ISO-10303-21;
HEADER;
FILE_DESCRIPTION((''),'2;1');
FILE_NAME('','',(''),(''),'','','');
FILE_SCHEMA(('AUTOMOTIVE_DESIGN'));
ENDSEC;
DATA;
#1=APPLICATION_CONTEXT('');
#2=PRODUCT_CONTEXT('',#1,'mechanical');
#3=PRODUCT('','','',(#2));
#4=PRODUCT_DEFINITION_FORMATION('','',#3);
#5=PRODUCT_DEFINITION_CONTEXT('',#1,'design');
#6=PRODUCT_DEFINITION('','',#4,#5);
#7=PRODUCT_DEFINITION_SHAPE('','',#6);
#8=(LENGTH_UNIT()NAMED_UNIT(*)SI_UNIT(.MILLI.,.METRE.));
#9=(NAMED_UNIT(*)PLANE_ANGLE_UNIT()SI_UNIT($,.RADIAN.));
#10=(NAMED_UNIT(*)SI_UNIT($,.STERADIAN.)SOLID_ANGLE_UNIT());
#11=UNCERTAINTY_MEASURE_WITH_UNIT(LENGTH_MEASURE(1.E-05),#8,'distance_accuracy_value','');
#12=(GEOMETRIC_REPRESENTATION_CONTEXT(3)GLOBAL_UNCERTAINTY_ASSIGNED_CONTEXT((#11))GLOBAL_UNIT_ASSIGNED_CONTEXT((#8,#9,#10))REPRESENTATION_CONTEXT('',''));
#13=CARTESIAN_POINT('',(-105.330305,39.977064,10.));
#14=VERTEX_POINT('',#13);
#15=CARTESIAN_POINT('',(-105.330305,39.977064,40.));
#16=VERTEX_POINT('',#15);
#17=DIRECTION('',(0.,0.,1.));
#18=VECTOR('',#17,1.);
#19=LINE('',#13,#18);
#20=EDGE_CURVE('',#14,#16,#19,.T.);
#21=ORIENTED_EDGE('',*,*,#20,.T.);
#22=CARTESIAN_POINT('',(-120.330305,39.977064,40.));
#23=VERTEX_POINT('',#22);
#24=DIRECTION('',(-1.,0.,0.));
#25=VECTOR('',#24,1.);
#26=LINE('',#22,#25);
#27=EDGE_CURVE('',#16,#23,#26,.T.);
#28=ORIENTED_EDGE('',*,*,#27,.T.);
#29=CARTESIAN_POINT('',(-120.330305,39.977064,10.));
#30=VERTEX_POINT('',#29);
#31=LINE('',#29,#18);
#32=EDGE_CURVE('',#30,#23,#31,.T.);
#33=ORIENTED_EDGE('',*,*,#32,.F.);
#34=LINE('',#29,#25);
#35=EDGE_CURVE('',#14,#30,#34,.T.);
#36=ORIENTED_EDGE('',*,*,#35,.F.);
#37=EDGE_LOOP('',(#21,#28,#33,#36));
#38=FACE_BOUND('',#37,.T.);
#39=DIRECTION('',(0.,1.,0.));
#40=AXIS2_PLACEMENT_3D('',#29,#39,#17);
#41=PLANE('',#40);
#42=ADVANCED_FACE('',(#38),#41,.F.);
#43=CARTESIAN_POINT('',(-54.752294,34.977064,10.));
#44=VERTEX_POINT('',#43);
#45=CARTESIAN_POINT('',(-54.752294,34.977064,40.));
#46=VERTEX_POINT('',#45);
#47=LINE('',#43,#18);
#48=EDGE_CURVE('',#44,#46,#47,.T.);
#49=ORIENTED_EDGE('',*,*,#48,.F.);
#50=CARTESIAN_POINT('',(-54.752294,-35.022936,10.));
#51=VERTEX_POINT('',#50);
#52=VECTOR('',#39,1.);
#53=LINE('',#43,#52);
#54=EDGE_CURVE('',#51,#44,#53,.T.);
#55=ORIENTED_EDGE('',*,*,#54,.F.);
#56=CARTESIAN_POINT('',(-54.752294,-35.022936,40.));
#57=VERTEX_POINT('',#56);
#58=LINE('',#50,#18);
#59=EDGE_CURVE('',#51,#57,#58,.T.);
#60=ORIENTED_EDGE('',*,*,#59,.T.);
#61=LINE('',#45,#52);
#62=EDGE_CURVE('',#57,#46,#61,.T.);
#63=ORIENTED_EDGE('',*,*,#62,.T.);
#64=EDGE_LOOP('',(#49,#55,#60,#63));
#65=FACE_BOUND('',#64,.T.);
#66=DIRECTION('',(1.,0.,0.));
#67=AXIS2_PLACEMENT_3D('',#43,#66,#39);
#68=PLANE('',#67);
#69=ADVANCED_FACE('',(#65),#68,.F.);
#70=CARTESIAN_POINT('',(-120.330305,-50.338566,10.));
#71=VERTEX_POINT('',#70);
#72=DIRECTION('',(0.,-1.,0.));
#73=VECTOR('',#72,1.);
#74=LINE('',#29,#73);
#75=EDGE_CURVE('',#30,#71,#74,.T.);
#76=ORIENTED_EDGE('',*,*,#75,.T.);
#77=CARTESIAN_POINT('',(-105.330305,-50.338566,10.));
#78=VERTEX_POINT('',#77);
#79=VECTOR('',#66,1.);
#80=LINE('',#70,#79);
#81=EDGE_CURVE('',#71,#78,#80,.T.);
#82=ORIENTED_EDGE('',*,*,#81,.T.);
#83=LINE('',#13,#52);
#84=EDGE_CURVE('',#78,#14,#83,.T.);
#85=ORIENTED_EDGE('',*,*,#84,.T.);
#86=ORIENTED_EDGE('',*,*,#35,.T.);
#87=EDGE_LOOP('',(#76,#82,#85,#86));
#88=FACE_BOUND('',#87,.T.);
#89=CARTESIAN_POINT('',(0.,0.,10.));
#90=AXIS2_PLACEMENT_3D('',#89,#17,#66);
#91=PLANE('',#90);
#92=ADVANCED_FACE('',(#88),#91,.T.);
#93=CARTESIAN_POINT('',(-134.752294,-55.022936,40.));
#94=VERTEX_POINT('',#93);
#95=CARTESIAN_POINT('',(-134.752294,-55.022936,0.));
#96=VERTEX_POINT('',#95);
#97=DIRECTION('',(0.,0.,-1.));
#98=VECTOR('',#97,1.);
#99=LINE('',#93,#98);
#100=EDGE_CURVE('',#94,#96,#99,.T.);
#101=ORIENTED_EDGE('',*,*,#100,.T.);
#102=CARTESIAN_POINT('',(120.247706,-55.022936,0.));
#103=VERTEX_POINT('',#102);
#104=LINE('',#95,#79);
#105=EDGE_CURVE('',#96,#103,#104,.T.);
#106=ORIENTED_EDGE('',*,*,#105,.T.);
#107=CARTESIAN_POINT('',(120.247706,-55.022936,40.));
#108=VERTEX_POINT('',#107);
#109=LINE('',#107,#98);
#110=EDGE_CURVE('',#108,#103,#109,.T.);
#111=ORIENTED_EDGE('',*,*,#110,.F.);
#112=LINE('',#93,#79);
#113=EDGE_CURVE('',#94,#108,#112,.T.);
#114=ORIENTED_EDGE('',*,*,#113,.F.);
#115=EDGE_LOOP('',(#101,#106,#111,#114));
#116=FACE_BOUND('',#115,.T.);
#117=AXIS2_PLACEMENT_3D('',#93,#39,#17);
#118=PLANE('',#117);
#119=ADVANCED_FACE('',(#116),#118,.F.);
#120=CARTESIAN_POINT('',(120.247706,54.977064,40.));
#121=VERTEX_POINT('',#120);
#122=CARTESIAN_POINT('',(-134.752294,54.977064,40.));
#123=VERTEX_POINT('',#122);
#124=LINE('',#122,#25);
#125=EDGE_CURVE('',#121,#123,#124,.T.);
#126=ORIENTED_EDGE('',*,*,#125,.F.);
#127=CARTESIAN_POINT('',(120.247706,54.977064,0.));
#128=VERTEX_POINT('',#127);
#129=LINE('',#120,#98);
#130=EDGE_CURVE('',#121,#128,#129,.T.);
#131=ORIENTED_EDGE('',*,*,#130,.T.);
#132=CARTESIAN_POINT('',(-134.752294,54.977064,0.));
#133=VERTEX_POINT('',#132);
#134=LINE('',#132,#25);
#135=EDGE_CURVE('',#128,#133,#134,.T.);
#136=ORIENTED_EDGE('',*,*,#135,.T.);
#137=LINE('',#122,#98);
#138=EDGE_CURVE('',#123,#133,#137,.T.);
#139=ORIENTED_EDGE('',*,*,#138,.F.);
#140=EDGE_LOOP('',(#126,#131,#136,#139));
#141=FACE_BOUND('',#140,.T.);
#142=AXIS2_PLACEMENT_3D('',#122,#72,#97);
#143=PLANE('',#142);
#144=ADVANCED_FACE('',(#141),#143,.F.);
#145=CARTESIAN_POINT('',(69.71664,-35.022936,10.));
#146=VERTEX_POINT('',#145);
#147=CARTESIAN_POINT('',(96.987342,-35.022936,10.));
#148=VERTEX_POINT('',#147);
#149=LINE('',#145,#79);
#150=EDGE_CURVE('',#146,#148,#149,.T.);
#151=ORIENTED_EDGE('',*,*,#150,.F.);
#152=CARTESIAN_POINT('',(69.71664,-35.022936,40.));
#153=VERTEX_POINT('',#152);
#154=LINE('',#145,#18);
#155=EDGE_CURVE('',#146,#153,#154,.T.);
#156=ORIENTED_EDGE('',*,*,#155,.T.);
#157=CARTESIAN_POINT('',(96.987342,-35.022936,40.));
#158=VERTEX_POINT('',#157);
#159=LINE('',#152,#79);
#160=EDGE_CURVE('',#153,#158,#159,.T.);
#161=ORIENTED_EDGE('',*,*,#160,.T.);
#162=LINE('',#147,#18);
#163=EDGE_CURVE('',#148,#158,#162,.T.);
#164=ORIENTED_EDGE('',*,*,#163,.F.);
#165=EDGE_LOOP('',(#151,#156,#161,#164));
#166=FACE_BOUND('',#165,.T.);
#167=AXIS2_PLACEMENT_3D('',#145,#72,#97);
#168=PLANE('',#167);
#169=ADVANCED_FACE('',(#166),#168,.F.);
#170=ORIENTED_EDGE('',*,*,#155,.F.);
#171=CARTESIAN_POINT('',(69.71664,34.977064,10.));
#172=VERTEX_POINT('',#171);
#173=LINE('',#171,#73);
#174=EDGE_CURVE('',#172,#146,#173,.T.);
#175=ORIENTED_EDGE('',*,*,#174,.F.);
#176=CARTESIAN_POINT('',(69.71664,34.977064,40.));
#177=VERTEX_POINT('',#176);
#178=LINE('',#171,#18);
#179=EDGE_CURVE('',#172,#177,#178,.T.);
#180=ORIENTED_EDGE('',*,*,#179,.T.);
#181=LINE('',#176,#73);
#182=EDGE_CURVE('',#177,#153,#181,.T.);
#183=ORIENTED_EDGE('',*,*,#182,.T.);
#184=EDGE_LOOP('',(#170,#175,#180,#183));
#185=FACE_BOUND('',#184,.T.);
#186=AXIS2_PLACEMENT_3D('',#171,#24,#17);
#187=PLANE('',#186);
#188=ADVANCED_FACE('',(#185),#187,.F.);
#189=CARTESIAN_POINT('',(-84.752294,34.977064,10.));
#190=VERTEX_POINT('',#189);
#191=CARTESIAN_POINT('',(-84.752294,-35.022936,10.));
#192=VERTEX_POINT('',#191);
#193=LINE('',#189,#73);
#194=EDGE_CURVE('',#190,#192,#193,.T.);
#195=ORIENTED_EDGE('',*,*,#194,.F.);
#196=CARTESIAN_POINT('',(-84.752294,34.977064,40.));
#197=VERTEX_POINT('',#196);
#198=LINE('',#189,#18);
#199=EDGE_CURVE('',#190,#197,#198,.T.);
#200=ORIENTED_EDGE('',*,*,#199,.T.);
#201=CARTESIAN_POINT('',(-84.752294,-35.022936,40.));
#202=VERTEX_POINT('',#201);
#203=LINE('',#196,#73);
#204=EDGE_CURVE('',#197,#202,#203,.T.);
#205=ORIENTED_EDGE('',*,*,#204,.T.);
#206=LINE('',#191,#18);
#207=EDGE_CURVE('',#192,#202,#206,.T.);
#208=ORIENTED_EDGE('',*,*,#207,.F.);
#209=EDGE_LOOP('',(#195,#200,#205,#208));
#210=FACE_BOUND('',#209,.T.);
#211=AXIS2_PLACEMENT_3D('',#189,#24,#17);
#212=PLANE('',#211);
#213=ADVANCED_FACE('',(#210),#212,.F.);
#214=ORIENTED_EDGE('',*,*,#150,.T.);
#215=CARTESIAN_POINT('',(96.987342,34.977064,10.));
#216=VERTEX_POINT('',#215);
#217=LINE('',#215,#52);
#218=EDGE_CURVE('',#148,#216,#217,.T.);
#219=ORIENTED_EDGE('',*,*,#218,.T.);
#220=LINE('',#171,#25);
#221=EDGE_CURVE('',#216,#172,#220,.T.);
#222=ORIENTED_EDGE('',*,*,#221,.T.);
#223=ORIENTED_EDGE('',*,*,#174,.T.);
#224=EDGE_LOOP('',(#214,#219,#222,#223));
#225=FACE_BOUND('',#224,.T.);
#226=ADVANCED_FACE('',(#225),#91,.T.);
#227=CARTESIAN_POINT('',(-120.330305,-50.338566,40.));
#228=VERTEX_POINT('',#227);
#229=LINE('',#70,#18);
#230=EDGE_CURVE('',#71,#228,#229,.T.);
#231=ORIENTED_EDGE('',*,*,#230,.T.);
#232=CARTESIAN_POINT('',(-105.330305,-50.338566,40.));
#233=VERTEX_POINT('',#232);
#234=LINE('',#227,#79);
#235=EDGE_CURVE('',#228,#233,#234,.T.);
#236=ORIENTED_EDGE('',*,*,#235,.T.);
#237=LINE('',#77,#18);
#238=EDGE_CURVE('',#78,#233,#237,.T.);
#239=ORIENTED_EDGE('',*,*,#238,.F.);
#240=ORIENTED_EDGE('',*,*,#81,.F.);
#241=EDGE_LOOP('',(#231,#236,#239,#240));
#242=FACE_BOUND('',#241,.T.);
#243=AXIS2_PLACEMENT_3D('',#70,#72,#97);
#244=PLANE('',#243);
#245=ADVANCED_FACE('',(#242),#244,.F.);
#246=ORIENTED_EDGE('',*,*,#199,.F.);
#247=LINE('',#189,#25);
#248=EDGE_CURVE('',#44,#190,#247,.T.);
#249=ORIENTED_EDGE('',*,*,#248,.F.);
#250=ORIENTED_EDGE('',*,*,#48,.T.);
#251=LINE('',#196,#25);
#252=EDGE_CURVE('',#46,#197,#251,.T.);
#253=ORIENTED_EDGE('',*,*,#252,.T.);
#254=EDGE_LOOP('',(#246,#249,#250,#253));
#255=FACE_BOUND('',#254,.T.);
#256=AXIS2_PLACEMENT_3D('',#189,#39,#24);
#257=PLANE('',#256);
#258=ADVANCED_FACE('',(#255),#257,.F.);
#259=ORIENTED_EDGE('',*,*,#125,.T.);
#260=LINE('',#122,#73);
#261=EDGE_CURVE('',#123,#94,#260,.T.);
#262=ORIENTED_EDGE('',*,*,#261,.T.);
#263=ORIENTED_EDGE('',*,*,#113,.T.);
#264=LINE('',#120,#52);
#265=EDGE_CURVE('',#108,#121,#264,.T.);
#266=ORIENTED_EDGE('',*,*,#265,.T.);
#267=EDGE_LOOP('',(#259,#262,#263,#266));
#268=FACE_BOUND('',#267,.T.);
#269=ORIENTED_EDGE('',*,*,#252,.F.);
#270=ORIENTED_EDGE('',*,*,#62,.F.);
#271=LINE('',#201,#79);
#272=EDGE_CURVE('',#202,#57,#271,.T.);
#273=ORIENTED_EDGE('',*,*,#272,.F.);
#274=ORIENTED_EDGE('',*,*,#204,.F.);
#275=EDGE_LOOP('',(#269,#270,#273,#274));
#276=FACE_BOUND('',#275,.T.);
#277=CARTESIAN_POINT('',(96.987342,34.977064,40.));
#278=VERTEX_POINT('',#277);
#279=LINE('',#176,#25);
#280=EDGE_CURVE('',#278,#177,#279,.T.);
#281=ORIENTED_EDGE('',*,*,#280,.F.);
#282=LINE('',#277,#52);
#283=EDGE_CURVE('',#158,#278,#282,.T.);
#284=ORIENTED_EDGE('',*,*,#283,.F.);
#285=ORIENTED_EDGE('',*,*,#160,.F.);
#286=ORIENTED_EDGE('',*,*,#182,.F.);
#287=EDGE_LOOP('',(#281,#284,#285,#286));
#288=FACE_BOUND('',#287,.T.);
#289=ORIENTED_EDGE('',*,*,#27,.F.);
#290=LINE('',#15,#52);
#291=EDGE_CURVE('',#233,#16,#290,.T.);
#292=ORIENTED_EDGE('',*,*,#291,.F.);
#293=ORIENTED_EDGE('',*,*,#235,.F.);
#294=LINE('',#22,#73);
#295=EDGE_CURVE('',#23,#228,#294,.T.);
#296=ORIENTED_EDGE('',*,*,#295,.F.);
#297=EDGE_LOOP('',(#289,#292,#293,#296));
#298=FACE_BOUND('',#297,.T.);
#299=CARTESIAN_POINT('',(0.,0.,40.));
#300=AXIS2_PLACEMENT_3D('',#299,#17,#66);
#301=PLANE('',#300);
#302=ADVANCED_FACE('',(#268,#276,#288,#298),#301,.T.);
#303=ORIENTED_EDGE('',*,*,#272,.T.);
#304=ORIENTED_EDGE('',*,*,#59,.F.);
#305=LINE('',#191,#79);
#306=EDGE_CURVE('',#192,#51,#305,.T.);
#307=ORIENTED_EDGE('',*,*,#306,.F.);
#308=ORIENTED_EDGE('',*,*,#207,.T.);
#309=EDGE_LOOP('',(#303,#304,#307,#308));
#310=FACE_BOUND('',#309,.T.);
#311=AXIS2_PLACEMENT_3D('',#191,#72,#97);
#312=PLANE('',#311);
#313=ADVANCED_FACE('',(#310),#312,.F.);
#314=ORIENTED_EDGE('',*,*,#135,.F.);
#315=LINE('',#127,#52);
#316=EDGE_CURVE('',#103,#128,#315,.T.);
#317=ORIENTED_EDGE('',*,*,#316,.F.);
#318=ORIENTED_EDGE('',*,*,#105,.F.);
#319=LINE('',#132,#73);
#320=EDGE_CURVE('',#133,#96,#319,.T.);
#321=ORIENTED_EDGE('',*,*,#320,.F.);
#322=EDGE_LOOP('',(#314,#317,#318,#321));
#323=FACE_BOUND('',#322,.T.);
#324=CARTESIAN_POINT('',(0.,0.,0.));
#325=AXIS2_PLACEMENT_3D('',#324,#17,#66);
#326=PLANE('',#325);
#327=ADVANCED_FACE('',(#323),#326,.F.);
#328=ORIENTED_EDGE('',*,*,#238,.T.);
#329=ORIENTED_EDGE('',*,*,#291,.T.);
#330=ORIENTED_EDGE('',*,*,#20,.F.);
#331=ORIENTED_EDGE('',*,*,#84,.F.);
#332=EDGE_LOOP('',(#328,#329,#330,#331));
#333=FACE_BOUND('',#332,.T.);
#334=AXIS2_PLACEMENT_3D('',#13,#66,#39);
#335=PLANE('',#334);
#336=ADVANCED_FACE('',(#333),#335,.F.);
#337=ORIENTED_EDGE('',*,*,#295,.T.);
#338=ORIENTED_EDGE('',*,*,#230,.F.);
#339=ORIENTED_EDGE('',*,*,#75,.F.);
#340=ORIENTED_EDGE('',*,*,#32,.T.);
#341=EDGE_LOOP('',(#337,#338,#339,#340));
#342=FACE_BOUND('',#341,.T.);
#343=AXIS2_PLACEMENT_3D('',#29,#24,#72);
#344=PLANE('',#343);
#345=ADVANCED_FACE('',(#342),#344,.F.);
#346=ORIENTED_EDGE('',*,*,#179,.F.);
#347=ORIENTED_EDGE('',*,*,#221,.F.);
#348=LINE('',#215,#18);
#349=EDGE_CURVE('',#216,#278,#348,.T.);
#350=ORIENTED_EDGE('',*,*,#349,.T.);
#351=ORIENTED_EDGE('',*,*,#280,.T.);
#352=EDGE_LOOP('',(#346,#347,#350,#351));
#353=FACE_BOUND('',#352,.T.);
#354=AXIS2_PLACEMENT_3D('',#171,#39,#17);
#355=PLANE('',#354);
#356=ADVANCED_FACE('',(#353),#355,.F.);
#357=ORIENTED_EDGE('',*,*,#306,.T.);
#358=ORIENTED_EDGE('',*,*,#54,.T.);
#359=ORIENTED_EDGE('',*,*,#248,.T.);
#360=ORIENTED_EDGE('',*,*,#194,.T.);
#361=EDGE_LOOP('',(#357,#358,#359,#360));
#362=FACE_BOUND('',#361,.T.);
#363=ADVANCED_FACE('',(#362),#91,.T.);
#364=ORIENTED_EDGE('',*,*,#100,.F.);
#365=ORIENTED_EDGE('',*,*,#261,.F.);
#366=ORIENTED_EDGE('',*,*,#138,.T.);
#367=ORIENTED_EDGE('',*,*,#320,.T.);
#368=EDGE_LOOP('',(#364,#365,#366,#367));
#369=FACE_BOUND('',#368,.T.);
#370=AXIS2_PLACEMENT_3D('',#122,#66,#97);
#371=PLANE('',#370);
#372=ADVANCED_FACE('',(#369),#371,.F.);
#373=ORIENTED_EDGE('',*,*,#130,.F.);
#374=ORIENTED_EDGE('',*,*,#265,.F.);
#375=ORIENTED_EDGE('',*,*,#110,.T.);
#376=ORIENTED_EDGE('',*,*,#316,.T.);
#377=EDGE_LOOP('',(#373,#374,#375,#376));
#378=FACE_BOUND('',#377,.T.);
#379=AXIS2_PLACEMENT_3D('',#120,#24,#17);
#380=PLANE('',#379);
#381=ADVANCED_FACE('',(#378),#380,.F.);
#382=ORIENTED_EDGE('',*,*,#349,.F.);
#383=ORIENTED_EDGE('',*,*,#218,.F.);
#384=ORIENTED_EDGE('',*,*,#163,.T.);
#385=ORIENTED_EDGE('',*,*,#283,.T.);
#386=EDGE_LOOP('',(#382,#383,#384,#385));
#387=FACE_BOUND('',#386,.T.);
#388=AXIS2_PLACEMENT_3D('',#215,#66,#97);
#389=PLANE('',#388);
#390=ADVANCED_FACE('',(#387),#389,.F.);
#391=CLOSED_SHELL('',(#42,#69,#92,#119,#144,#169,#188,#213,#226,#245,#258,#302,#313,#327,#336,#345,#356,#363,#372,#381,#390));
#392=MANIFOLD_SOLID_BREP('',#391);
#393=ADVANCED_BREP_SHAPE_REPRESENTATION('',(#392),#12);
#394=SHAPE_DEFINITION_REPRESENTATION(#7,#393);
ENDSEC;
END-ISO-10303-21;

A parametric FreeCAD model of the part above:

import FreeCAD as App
import Part
import Sketcher
Q = App.Units.Quantity


def add_polygon(sketch, points):
    """Adds a closed chain of lines whose ends are joined by coincident constraints."""
    first, n = sketch.GeometryCount, len(points)
    for a, b in zip(points, points[1:] + points[:1]):
        sketch.addGeometry(Part.LineSegment(App.Vector(*a, 0), App.Vector(*b, 0)), False)
    for i in range(n):
        sketch.addConstraint(Sketcher.Constraint("Coincident", first + i, 2, first + (i + 1) % n, 1))

doc = App.newDocument("Part")
params = doc.addObject("Spreadsheet::Sheet", "Params")
for row, (alias, value) in enumerate([
    ("sketch1_width", "255 mm"),
    ("sketch1_height", "110 mm"),
    ("pad1_length", "40 mm"),
    ("sketch2_width", "30 mm"),
    ("sketch2_width2", "15 mm"),
    ("sketch2_height", "70 mm"),
    ("pocket1_length", "30 mm"),
], start=1):
    params.set(f"A{row}", alias)
    params.set(f"B{row}", "=" + value)
    params.setAlias(f"B{row}", alias)

body = doc.addObject("PartDesign::Body", "Body")

# Sketch on XY plane
sketch1 = body.newObject("Sketcher::SketchObject", "Sketch")
sketch1.AttachmentSupport = (doc.getObject("XY_Plane"), [""])
sketch1.MapMode = "FlatFace"
add_polygon(sketch1, [(-135, 55), (-135, -55), (120, -55), (120, 55)])  # lines 0-3
sketch1.addConstraint(Sketcher.Constraint("Vertical", 0))
sketch1.addConstraint(Sketcher.Constraint("Horizontal", 1))
sketch1.addConstraint(Sketcher.Constraint("Vertical", 2))
sketch1.addConstraint(Sketcher.Constraint("Horizontal", 3))
sketch1.addConstraint(Sketcher.Constraint("DistanceX", 1, 1, 1, 2, Q("255 mm")))
sketch1.addConstraint(Sketcher.Constraint("DistanceY", 0, 2, 0, 1, Q("110 mm")))
sketch1.addConstraint(Sketcher.Constraint("DistanceX", 0, 2, -1, 1, Q("134.752294 mm")))
sketch1.addConstraint(Sketcher.Constraint("DistanceY", 0, 2, -1, 1, Q("55.022936 mm")))
sketch1.setExpression("Constraints[8]", "Params.sketch1_width")
sketch1.setExpression("Constraints[9]", "Params.sketch1_height")
pad1 = body.newObject("PartDesign::Pad", "Pad")
pad1.Profile = sketch1
pad1.setExpression("Length", "Params.pad1_length")

# Sketch on XY plane
sketch2 = body.newObject("Sketcher::SketchObject", "Sketch001")
sketch2.AttachmentSupport = (doc.getObject("XY_Plane"), [""])
sketch2.MapMode = "FlatFace"
sketch2.AttachmentOffset = App.Placement(App.Vector(0, 0, 40), App.Rotation())
add_polygon(sketch2, [(-85, 35), (-85, -35), (-55, -35), (-55, 35)])  # lines 0-3
add_polygon(sketch2, [(-120, 40), (-120, -50), (-105, -50), (-105, 40)])  # lines 4-7
add_polygon(sketch2, [(70, 35), (70, -35), (97, -35), (97, 35)])  # lines 8-11
sketch2.addConstraint(Sketcher.Constraint("Vertical", 0))
sketch2.addConstraint(Sketcher.Constraint("Horizontal", 1))
sketch2.addConstraint(Sketcher.Constraint("Vertical", 2))
sketch2.addConstraint(Sketcher.Constraint("Horizontal", 3))
sketch2.addConstraint(Sketcher.Constraint("Vertical", 4))
sketch2.addConstraint(Sketcher.Constraint("Horizontal", 5))
sketch2.addConstraint(Sketcher.Constraint("Vertical", 6))
sketch2.addConstraint(Sketcher.Constraint("Horizontal", 7))
sketch2.addConstraint(Sketcher.Constraint("Vertical", 8))
sketch2.addConstraint(Sketcher.Constraint("Horizontal", 9))
sketch2.addConstraint(Sketcher.Constraint("Vertical", 10))
sketch2.addConstraint(Sketcher.Constraint("Horizontal", 11))
sketch2.addConstraint(Sketcher.Constraint("Horizontal", 1, 2, 8, 2))
sketch2.addConstraint(Sketcher.Constraint("Horizontal", 3, 2, 10, 2))
sketch2.addConstraint(Sketcher.Constraint("DistanceX", 1, 1, 1, 2, Q("30 mm")))
sketch2.addConstraint(Sketcher.Constraint("DistanceX", 5, 1, 5, 2, Q("15 mm")))
sketch2.addConstraint(Sketcher.Constraint("DistanceY", 0, 2, 0, 1, Q("70 mm")))
sketch2.addConstraint(Sketcher.Constraint("DistanceY", 3, 2, 6, 2, Q("5 mm")))
sketch2.addConstraint(Sketcher.Constraint("DistanceY", 4, 2, 4, 1, Q("90.31563 mm")))
sketch2.addConstraint(Sketcher.Constraint("DistanceX", 9, 1, 9, 2, Q("27.270702 mm")))
sketch2.addConstraint(Sketcher.Constraint("DistanceX", -1, 1, 8, 2, Q("69.71664 mm")))
sketch2.addConstraint(Sketcher.Constraint("DistanceX", 4, 2, 0, 2, Q("35.578012 mm")))
sketch2.addConstraint(Sketcher.Constraint("DistanceX", 0, 2, -1, 1, Q("84.752294 mm")))
sketch2.addConstraint(Sketcher.Constraint("DistanceY", 0, 2, -1, 1, Q("35.022936 mm")))
sketch2.setExpression("Constraints[26]", "Params.sketch2_width")
sketch2.setExpression("Constraints[27]", "Params.sketch2_width2")
sketch2.setExpression("Constraints[28]", "Params.sketch2_height")
pocket1 = body.newObject("PartDesign::Pocket", "Pocket")
pocket1.Profile = sketch2
pocket1.setExpression("Length", "Params.pocket1_length")

doc.recompute()
